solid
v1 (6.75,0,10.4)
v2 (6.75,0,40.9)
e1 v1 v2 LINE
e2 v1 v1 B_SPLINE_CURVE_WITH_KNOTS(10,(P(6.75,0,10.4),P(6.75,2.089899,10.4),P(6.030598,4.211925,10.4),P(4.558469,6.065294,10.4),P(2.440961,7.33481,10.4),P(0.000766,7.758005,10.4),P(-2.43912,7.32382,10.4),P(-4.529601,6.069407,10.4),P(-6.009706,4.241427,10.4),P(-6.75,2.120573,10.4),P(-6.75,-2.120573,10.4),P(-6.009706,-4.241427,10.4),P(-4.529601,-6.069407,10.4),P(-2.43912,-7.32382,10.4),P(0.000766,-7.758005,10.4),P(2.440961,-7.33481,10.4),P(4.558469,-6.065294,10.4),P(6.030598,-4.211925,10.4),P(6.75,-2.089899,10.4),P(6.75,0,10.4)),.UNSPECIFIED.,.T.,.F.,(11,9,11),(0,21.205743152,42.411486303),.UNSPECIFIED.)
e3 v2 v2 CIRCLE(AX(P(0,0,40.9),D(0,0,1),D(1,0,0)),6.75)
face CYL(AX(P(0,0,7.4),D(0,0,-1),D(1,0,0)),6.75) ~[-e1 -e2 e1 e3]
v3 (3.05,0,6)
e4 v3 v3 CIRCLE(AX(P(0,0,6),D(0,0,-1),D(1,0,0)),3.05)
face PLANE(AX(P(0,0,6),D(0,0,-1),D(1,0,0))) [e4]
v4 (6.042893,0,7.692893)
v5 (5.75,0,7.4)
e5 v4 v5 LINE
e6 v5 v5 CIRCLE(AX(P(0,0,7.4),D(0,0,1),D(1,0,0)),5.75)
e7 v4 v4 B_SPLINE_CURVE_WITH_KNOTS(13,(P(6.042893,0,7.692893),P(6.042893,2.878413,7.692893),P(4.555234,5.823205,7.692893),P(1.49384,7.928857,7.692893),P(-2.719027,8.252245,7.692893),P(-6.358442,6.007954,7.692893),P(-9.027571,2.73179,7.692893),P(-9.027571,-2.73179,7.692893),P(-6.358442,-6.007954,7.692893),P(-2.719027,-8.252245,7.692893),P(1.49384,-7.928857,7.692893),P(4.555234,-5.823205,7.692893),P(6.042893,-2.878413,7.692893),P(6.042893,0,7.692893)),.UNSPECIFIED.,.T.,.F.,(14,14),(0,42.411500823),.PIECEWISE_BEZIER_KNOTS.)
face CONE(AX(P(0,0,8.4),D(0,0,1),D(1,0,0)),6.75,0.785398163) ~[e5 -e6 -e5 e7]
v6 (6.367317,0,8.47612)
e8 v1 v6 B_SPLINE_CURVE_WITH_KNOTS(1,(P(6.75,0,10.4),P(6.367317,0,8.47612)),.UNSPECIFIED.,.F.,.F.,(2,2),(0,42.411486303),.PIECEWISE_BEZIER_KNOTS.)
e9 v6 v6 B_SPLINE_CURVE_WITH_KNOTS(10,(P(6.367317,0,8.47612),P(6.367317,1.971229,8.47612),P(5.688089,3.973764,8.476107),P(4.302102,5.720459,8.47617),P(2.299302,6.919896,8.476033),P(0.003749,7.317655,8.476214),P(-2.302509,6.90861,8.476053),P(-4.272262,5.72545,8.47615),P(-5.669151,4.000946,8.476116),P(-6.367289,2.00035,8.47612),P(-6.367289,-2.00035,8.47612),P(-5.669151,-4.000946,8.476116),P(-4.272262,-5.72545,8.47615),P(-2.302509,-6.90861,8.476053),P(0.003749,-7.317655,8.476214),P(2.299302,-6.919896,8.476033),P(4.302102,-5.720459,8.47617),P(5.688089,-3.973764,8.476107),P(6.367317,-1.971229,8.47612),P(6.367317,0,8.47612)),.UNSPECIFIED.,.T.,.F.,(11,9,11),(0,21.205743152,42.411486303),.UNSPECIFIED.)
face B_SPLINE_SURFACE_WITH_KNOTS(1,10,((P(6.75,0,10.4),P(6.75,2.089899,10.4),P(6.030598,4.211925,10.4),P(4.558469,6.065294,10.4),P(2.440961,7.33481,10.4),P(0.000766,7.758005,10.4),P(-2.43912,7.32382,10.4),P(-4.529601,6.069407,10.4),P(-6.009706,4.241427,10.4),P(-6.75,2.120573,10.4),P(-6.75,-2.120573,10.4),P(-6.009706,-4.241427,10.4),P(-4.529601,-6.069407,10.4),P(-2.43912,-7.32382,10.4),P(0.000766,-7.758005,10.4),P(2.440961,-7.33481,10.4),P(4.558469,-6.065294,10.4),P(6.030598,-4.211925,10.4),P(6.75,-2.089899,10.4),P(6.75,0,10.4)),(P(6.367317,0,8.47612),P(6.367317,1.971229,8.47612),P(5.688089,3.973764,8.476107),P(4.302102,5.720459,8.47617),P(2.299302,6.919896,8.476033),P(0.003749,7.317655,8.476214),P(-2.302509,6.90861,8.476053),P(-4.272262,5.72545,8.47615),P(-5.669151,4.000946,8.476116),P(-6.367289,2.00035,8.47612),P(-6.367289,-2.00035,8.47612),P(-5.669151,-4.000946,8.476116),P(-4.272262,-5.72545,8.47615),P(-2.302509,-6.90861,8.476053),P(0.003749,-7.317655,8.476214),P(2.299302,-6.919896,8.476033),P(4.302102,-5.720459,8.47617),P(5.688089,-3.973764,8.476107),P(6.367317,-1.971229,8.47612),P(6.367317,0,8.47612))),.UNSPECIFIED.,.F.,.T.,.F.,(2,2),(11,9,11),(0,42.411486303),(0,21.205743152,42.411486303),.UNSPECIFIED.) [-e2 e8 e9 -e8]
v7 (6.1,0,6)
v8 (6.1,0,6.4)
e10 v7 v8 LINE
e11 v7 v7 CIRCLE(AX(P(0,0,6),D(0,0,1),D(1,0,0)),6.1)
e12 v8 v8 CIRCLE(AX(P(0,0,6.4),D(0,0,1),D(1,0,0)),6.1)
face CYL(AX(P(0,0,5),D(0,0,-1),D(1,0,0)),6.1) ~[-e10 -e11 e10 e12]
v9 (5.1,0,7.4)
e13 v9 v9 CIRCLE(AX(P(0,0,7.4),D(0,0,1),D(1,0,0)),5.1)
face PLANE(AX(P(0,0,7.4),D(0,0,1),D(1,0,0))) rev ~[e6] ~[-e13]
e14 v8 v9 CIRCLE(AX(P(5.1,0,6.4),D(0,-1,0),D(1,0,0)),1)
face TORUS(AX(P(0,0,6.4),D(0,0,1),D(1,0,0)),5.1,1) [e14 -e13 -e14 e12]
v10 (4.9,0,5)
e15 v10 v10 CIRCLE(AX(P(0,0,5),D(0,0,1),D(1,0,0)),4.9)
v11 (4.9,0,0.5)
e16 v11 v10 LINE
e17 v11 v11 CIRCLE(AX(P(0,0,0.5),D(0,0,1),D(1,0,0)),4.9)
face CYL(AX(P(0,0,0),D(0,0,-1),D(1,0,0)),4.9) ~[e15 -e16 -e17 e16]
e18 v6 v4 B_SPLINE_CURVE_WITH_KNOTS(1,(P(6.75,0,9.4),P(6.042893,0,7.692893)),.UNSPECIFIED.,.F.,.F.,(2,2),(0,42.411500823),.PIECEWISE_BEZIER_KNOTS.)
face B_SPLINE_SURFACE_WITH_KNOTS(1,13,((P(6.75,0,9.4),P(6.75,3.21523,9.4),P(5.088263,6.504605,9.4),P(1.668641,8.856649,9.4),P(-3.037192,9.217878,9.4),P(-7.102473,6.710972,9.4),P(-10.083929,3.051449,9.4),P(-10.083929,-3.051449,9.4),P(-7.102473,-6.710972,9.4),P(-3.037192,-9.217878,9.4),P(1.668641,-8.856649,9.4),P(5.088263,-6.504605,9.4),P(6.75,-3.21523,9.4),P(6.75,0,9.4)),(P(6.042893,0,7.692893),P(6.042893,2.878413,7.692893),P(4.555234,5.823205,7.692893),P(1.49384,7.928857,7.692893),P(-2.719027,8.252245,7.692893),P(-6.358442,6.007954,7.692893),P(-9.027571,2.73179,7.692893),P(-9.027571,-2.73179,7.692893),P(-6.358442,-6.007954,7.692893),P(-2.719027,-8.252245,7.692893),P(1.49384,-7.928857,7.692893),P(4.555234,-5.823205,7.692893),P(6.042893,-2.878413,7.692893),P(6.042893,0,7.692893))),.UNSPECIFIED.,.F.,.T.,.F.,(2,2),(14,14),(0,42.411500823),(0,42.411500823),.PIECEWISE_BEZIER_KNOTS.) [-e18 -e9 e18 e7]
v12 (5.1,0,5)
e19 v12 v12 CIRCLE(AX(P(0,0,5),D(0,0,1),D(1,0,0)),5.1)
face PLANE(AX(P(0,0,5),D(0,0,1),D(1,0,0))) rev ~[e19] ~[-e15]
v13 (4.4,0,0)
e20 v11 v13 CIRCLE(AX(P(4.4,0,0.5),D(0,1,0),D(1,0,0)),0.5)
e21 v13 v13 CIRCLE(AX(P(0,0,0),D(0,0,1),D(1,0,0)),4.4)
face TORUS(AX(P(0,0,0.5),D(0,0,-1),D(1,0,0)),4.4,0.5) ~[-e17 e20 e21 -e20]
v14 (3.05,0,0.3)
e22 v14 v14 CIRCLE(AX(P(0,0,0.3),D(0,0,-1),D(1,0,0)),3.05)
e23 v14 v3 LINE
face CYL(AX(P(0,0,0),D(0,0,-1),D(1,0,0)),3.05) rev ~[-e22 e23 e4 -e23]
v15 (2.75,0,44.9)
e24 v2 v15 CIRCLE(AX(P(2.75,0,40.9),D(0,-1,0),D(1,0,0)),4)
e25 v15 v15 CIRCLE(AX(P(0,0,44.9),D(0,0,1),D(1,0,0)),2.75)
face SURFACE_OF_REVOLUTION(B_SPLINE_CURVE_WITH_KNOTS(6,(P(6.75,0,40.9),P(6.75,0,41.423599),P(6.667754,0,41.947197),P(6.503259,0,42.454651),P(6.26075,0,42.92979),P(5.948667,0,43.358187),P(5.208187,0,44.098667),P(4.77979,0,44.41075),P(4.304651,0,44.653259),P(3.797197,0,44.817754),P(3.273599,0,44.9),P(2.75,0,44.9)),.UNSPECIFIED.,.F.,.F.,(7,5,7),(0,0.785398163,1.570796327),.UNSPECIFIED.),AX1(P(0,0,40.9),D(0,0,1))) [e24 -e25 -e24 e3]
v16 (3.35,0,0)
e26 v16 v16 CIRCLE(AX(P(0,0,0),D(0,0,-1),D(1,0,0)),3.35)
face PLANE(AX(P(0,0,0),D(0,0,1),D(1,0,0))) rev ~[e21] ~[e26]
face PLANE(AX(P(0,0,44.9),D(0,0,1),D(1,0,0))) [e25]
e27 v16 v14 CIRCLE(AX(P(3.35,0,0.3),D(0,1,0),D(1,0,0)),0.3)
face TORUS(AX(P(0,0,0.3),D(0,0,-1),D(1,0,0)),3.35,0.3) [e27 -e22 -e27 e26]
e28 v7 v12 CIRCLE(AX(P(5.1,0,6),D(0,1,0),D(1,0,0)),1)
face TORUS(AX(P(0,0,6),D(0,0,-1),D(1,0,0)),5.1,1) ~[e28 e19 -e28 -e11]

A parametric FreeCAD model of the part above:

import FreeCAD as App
import Part
import Sketcher
from FreeCAD import Vector
Q = App.Units.Quantity


def edges_at(feature, points):
    """Names of the edges that pass closest to the given points."""
    edges = feature.Shape.Edges
    near = lambda p: min(range(len(edges)), key=lambda i: edges[i].distToShape(Part.Vertex(*p))[0])
    return sorted({f"Edge{near(p) + 1}" for p in points})

doc = App.newDocument("Part")
params = doc.addObject("Spreadsheet::Sheet", "Params")
for row, (alias, value) in enumerate([
    ("sketch1_diameter", "9.8 mm"),
    ("pad1_length", "5 mm"),
    ("sketch2_diameter", "12.2 mm"),
    ("pad2_length", "2.4 mm"),
    ("fillet_radius", "1 mm"),
    ("fillet2_radius", "0.5 mm"),
    ("sketch3_diameter", "13.5 mm"),
    ("pad3_length", "37.5 mm"),
    ("fillet3_radius", "4 mm"),
    ("chamfer_size", "1 mm"),
    ("chamfer2_size", "1 mm"),
    ("chamfer3_size", "1 mm"),
    ("sketch4_diameter", "6.1 mm"),
    ("pocket1_length", "6 mm"),
    ("fillet4_radius", "0.3 mm"),
], start=1):
    params.set(f"A{row}", alias)
    params.set(f"B{row}", "=" + value)
    params.setAlias(f"B{row}", alias)

body = doc.addObject("PartDesign::Body", "Body")

# Sketch on XY plane
sketch1 = doc.addObject("Sketcher::SketchObject", "Sketch")
body.addObject(sketch1)
sketch1.AttachmentSupport = (doc.XY_Plane, [""])
sketch1.MapMode = "FlatFace"
sketch1.addGeometry(Part.Circle(Vector(0, 0, 0), Vector(0, 0, 1), 4.9), False)
sketch1.addConstraint([
    Sketcher.Constraint("Coincident", 0, 3, -1, 1),
    Sketcher.Constraint("Diameter", 0, Q("9.8 mm")),
])
sketch1.setExpression("Constraints[1]", "Params.sketch1_diameter")
pad1 = doc.addObject("PartDesign::Pad", "Pad")
body.addObject(pad1)
pad1.Profile = sketch1
pad1.setExpression("Length", "Params.pad1_length")

# Sketch on XY plane
sketch2 = doc.addObject("Sketcher::SketchObject", "Sketch001")
body.addObject(sketch2)
sketch2.AttachmentSupport = (doc.XY_Plane, [""])
sketch2.MapMode = "FlatFace"
sketch2.AttachmentOffset = App.Placement(Vector(0, 0, 5), App.Rotation())
sketch2.addGeometry(Part.Circle(Vector(0, 0, 0), Vector(0, 0, 1), 6), False)
sketch2.addConstraint([
    Sketcher.Constraint("Coincident", 0, 3, -1, 1),
    Sketcher.Constraint("Diameter", 0, Q("12.2 mm")),
])
sketch2.setExpression("Constraints[1]", "Params.sketch2_diameter")
pad2 = doc.addObject("PartDesign::Pad", "Pad001")
body.addObject(pad2)
pad2.Profile = sketch2
pad2.setExpression("Length", "Params.pad2_length")
doc.recompute()

fillet = doc.addObject("PartDesign::Fillet", "Fillet")
body.addObject(fillet)
fillet.Base = (pad2, edges_at(pad2, [(-6.1, 0, 7.4), (-6.1, 0, 5)]))
fillet.setExpression("Radius", "Params.fillet_radius")
doc.recompute()

fillet2 = doc.addObject("PartDesign::Fillet", "Fillet001")
body.addObject(fillet2)
fillet2.Base = (fillet, edges_at(fillet, [(-4.9, 0, 0)]))
fillet2.setExpression("Radius", "Params.fillet2_radius")

# Sketch on XY plane
sketch3 = doc.addObject("Sketcher::SketchObject", "Sketch002")
body.addObject(sketch3)
sketch3.AttachmentSupport = (doc.XY_Plane, [""])
sketch3.MapMode = "FlatFace"
sketch3.AttachmentOffset = App.Placement(Vector(0, 0, 7.4), App.Rotation())
sketch3.addGeometry(Part.Circle(Vector(0, 0, 0), Vector(0, 0, 1), 7), False)
sketch3.addConstraint([
    Sketcher.Constraint("Coincident", 0, 3, -1, 1),
    Sketcher.Constraint("Diameter", 0, Q("13.5 mm")),
])
sketch3.setExpression("Constraints[1]", "Params.sketch3_diameter")
pad3 = doc.addObject("PartDesign::Pad", "Pad002")
body.addObject(pad3)
pad3.Profile = sketch3
pad3.setExpression("Length", "Params.pad3_length")
doc.recompute()

fillet3 = doc.addObject("PartDesign::Fillet", "Fillet002")
body.addObject(fillet3)
fillet3.Base = (pad3, edges_at(pad3, [(-6.75, 0, 44.9)]))
fillet3.setExpression("Radius", "Params.fillet3_radius")
doc.recompute()

chamfer = doc.addObject("PartDesign::Chamfer", "Chamfer")
body.addObject(chamfer)
chamfer.Base = (fillet3, edges_at(fillet3, [(-6.75, 0, 7.4)]))
chamfer.setExpression("Size", "Params.chamfer_size")
doc.recompute()

chamfer2 = doc.addObject("PartDesign::Chamfer", "Chamfer001")
body.addObject(chamfer2)
chamfer2.Base = (chamfer, edges_at(chamfer, [(-6.75, 0, 8.4)]))
chamfer2.setExpression("Size", "Params.chamfer2_size")
doc.recompute()

chamfer3 = doc.addObject("PartDesign::Chamfer", "Chamfer002")
body.addObject(chamfer3)
chamfer3.Base = (chamfer2, edges_at(chamfer2, [(-6.75, 0, 9.4)]))
chamfer3.setExpression("Size", "Params.chamfer3_size")

# Sketch on XY plane
sketch4 = doc.addObject("Sketcher::SketchObject", "Sketch003")
body.addObject(sketch4)
sketch4.AttachmentSupport = (doc.XY_Plane, [""])
sketch4.MapMode = "FlatFace"
sketch4.addGeometry(Part.Circle(Vector(0, 0, 0), Vector(0, 0, 1), 3), False)
sketch4.addConstraint([
    Sketcher.Constraint("Coincident", 0, 3, -1, 1),
    Sketcher.Constraint("Diameter", 0, Q("6.1 mm")),
])
sketch4.setExpression("Constraints[1]", "Params.sketch4_diameter")
pocket1 = doc.addObject("PartDesign::Pocket", "Pocket")
body.addObject(pocket1)
pocket1.Profile = sketch4
pocket1.setExpression("Length", "Params.pocket1_length")
pocket1.Reversed = True
doc.recompute()

fillet4 = doc.addObject("PartDesign::Fillet", "Fillet003")
body.addObject(fillet4)
fillet4.Base = (pocket1, edges_at(pocket1, [(-3.05, 0, 0)]))
fillet4.setExpression("Radius", "Params.fillet4_radius")

doc.recompute()
